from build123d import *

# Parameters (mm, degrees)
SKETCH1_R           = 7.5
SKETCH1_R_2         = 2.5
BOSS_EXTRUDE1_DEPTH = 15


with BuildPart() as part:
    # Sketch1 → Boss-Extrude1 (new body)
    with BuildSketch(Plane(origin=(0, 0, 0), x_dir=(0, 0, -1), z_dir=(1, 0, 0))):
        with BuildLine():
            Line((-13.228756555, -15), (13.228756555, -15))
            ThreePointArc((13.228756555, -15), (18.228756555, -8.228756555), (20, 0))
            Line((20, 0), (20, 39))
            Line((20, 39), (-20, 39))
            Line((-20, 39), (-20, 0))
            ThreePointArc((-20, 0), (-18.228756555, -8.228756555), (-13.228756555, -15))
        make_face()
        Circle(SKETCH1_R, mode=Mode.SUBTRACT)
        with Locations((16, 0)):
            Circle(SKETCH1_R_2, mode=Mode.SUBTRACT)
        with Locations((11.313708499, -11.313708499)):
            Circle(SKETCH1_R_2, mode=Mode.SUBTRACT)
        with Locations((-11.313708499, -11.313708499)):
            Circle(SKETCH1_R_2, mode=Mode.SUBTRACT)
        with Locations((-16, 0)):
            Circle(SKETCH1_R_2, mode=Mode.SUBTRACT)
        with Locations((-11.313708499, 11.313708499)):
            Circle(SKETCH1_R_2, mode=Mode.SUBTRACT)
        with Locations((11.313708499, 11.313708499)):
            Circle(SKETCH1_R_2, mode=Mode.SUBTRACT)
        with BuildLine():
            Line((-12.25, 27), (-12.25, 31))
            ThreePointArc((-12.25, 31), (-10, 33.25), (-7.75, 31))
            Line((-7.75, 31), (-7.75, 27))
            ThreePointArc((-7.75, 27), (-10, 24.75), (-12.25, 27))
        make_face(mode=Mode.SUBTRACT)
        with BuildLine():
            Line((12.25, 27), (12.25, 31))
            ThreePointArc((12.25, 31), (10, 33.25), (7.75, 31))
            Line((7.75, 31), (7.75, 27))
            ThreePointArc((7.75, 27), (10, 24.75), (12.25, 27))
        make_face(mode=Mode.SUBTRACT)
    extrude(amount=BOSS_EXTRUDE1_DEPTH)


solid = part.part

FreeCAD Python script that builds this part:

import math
import FreeCAD as App
import Part
import Sketcher
from FreeCAD import Vector

doc = App.newDocument("Part")
body = doc.addObject("PartDesign::Body", "Body")

sketch1 = body.newObject("Sketcher::SketchObject", "Sketch")
sketch1.AttachmentSupport = (doc.getObject("YZ_Plane"), [""])
sketch1.MapMode = "FlatFace"
sketch1.addGeometry(Part.LineSegment(Vector(-15, 13.2, 0), Vector(-15, -13.2, 0)), False)
sketch1.addGeometry(Part.ArcOfCircle(Part.Circle(Vector(0, 0, 0), Vector(0, 0, 1), 20), math.radians(-139), math.radians(-90)), False)
sketch1.addGeometry(Part.LineSegment(Vector(0, -20, 0), Vector(39, -20, 0)), False)
sketch1.addGeometry(Part.LineSegment(Vector(39, -20, 0), Vector(39, 20, 0)), False)
sketch1.addGeometry(Part.LineSegment(Vector(39, 20, 0), Vector(0, 20, 0)), False)
sketch1.addGeometry(Part.ArcOfCircle(Part.Circle(Vector(0, 0, 0), Vector(0, 0, 1), 20), math.radians(90), math.radians(139)), False)
sketch1.addGeometry(Part.Circle(Vector(-11.3, 11.3, 0), Vector(0, 0, 1), 2.5), False)
sketch1.addGeometry(Part.Circle(Vector(0, 16, 0), Vector(0, 0, 1), 2.5), False)
sketch1.addGeometry(Part.Circle(Vector(-11.3, -11.3, 0), Vector(0, 0, 1), 2.5), False)
sketch1.addGeometry(Part.Circle(Vector(0, 0, 0), Vector(0, 0, 1), 7.5), False)
sketch1.addGeometry(Part.Circle(Vector(0, -16, 0), Vector(0, 0, 1), 2.5), False)
sketch1.addGeometry(Part.Circle(Vector(11.3, 11.3, 0), Vector(0, 0, 1), 2.5), False)
sketch1.addGeometry(Part.ArcOfCircle(Part.Circle(Vector(27, 10, 0), Vector(0, 0, 1), 2.2), math.radians(90), math.radians(270)), False)
sketch1.addGeometry(Part.LineSegment(Vector(27, 12.2, 0), Vector(31, 12.2, 0)), False)
sketch1.addGeometry(Part.ArcOfCircle(Part.Circle(Vector(31, 10, 0), Vector(0, 0, 1), 2.2), math.radians(-90), math.radians(90)), False)
sketch1.addGeometry(Part.LineSegment(Vector(31, 7.8, 0), Vector(27, 7.8, 0)), False)
sketch1.addGeometry(Part.Circle(Vector(11.3, -11.3, 0), Vector(0, 0, 1), 2.5), False)
sketch1.addGeometry(Part.LineSegment(Vector(31, -12.2, 0), Vector(27, -12.2, 0)), False)
sketch1.addGeometry(Part.ArcOfCircle(Part.Circle(Vector(27, -10, 0), Vector(0, 0, 1), 2.2), math.radians(90), math.radians(270)), False)
sketch1.addGeometry(Part.LineSegment(Vector(27, -7.8, 0), Vector(31, -7.8, 0)), False)
sketch1.addGeometry(Part.ArcOfCircle(Part.Circle(Vector(31, -10, 0), Vector(0, 0, 1), 2.2), math.radians(-90), math.radians(90)), False)
sketch1.addConstraint(Sketcher.Constraint("Coincident", 0, 2, 1, 1))
sketch1.addConstraint(Sketcher.Constraint("Tangent", 1, 2, 2, 1))
sketch1.addConstraint(Sketcher.Constraint("Coincident", 2, 2, 3, 1))
sketch1.addConstraint(Sketcher.Constraint("Coincident", 3, 2, 4, 1))
sketch1.addConstraint(Sketcher.Constraint("Tangent", 4, 2, 5, 1))
sketch1.addConstraint(Sketcher.Constraint("Coincident", 5, 2, 0, 1))
sketch1.addConstraint(Sketcher.Constraint("Tangent", 12, 1, 13, 1))
sketch1.addConstraint(Sketcher.Constraint("Tangent", 13, 2, 14, 2))
sketch1.addConstraint(Sketcher.Constraint("Tangent", 14, 1, 15, 1))
sketch1.addConstraint(Sketcher.Constraint("Tangent", 15, 2, 12, 2))
sketch1.addConstraint(Sketcher.Constraint("Tangent", 17, 2, 18, 2))
sketch1.addConstraint(Sketcher.Constraint("Tangent", 18, 1, 19, 1))
sketch1.addConstraint(Sketcher.Constraint("Tangent", 19, 2, 20, 2))
sketch1.addConstraint(Sketcher.Constraint("Tangent", 20, 1, 17, 1))
sketch1.addConstraint(Sketcher.Constraint("Vertical", 0))
sketch1.addConstraint(Sketcher.Constraint("Horizontal", 2))
sketch1.addConstraint(Sketcher.Constraint("Vertical", 3))
sketch1.addConstraint(Sketcher.Constraint("Horizontal", 4))
sketch1.addConstraint(Sketcher.Constraint("Horizontal", 13))
sketch1.addConstraint(Sketcher.Constraint("Horizontal", 15))
sketch1.addConstraint(Sketcher.Constraint("Horizontal", 17))
sketch1.addConstraint(Sketcher.Constraint("Horizontal", 19))
sketch1.addConstraint(Sketcher.Constraint("Coincident", 1, 3, -1, 1))
sketch1.addConstraint(Sketcher.Constraint("Coincident", 5, 3, -1, 1))
sketch1.addConstraint(Sketcher.Constraint("Coincident", 9, 3, -1, 1))
sketch1.addConstraint(Sketcher.Constraint("Equal", 1, 5))
sketch1.addConstraint(Sketcher.Constraint("Equal", 6, 7))
sketch1.addConstraint(Sketcher.Constraint("Equal", 7, 8))
sketch1.addConstraint(Sketcher.Constraint("Equal", 8, 10))
sketch1.addConstraint(Sketcher.Constraint("Equal", 10, 11))
sketch1.addConstraint(Sketcher.Constraint("Equal", 11, 16))
sketch1.addConstraint(Sketcher.Constraint("Equal", 14, 18))
sketch1.addConstraint(Sketcher.Constraint("Symmetric", 7, 3, 10, 3, -1, 1))
sketch1.addConstraint(Sketcher.Constraint("Symmetric", 8, 3, 11, 3, -1, 1))
sketch1.addConstraint(Sketcher.Constraint("Symmetric", 6, 3, 16, 3, -1, 1))
sketch1.addConstraint(Sketcher.Constraint("Symmetric", 6, 3, 11, 3, -2))
sketch1.addConstraint(Sketcher.Constraint("Symmetric", 12, 3, 18, 3, -1))
sketch1.addConstraint(Sketcher.Constraint("PointOnObject", 7, 3, -2))
sketch1.addConstraint(Sketcher.Constraint("Vertical", 14, 3, 20, 3))
sketch1.addConstraint(Sketcher.Constraint("Diameter", 6, 5.0))
sketch1.addConstraint(Sketcher.Constraint("Diameter", 9, 15.0))
sketch1.addConstraint(Sketcher.Constraint("Radius", 1, 20.0))
sketch1.addConstraint(Sketcher.Constraint("DistanceX", 2, 1, 2, 2, 39.0))
sketch1.addConstraint(Sketcher.Constraint("DistanceX", 13, 1, 13, 2, 4.0))
sketch1.addConstraint(Sketcher.Constraint("Radius", 12, 2.25))
sketch1.addConstraint(Sketcher.Constraint("DistanceY", -1, 1, 7, 3, 16.0))
sketch1.addConstraint(Sketcher.Constraint("DistanceX", -1, 1, 12, 3, 27.0))
sketch1.addConstraint(Sketcher.Constraint("DistanceY", -1, 1, 12, 3, 10.0))
sketch1.addConstraint(Sketcher.Constraint("DistanceX", 0, 2, -1, 1, 15.0))
sketch1.addConstraint(Sketcher.Constraint("DistanceX", 6, 3, -1, 1, 11.313708))
sketch1.addConstraint(Sketcher.Constraint("DistanceY", -1, 1, 6, 3, 11.313708))
pad1 = body.newObject("PartDesign::Pad", "Pad")
pad1.Profile = sketch1
pad1.Length = 15

doc.recompute()
